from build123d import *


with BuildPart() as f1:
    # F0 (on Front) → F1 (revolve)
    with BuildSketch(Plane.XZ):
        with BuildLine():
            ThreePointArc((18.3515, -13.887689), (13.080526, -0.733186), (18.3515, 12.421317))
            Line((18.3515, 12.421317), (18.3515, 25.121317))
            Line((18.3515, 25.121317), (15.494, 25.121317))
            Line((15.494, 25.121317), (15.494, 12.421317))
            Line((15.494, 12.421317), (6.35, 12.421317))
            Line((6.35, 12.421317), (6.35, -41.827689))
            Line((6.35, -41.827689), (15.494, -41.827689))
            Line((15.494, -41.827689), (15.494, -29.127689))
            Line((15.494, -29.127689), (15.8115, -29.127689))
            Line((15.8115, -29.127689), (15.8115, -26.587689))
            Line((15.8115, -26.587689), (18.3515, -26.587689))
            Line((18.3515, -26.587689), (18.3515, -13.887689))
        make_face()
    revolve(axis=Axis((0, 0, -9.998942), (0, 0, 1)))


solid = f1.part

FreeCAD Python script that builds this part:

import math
import FreeCAD as App
import Part
import Sketcher

V = App.Vector
Q = App.Units.Quantity

doc = App.newDocument("Part")
body = doc.addObject("PartDesign::Body", "Body")

# Sketch on XZ plane
sketch1 = body.newObject("Sketcher::SketchObject", "Sketch")
sketch1.AttachmentSupport = (doc.getObject("XZ_Plane"), [""])
sketch1.MapMode = "FlatFace"
sketch1.addGeometry(Part.ArcOfCircle(Part.Circle(V(32.13, -0.73, 0), V(0, 0, 1), 19.05), math.radians(136), math.radians(224)), False)
sketch1.addGeometry(Part.LineSegment(V(18.35, 12.42, 0), V(18.35, 25.12, 0)), False)
sketch1.addGeometry(Part.LineSegment(V(18.35, 25.12, 0), V(15.49, 25.12, 0)), False)
sketch1.addGeometry(Part.LineSegment(V(15.49, 25.12, 0), V(15.49, 12.42, 0)), False)
sketch1.addGeometry(Part.LineSegment(V(15.49, 12.42, 0), V(6.35, 12.42, 0)), False)
sketch1.addGeometry(Part.LineSegment(V(6.35, 12.42, 0), V(6.35, -41.83, 0)), False)
sketch1.addGeometry(Part.LineSegment(V(6.35, -41.83, 0), V(15.49, -41.83, 0)), False)
sketch1.addGeometry(Part.LineSegment(V(15.49, -41.83, 0), V(15.49, -29.13, 0)), False)
sketch1.addGeometry(Part.LineSegment(V(15.49, -29.13, 0), V(15.81, -29.13, 0)), False)
sketch1.addGeometry(Part.LineSegment(V(15.81, -29.13, 0), V(15.81, -26.59, 0)), False)
sketch1.addGeometry(Part.LineSegment(V(15.81, -26.59, 0), V(18.35, -26.59, 0)), False)
sketch1.addGeometry(Part.LineSegment(V(18.35, -26.59, 0), V(18.35, -13.89, 0)), False)
sketch1.addConstraint(Sketcher.Constraint("Coincident", 0, 1, 1, 1))
sketch1.addConstraint(Sketcher.Constraint("Coincident", 1, 2, 2, 1))
sketch1.addConstraint(Sketcher.Constraint("Coincident", 2, 2, 3, 1))
sketch1.addConstraint(Sketcher.Constraint("Coincident", 3, 2, 4, 1))
sketch1.addConstraint(Sketcher.Constraint("Coincident", 4, 2, 5, 1))
sketch1.addConstraint(Sketcher.Constraint("Coincident", 5, 2, 6, 1))
sketch1.addConstraint(Sketcher.Constraint("Coincident", 6, 2, 7, 1))
sketch1.addConstraint(Sketcher.Constraint("Coincident", 7, 2, 8, 1))
sketch1.addConstraint(Sketcher.Constraint("Coincident", 8, 2, 9, 1))
sketch1.addConstraint(Sketcher.Constraint("Coincident", 9, 2, 10, 1))
sketch1.addConstraint(Sketcher.Constraint("Coincident", 10, 2, 11, 1))
sketch1.addConstraint(Sketcher.Constraint("Coincident", 11, 2, 0, 2))
sketch1.addConstraint(Sketcher.Constraint("Vertical", 1))
sketch1.addConstraint(Sketcher.Constraint("Horizontal", 2))
sketch1.addConstraint(Sketcher.Constraint("Vertical", 3))
sketch1.addConstraint(Sketcher.Constraint("Horizontal", 4))
sketch1.addConstraint(Sketcher.Constraint("Vertical", 5))
sketch1.addConstraint(Sketcher.Constraint("Horizontal", 6))
sketch1.addConstraint(Sketcher.Constraint("Vertical", 7))
sketch1.addConstraint(Sketcher.Constraint("Horizontal", 8))
sketch1.addConstraint(Sketcher.Constraint("Vertical", 9))
sketch1.addConstraint(Sketcher.Constraint("Horizontal", 10))
sketch1.addConstraint(Sketcher.Constraint("Vertical", 11))
sketch1.addConstraint(Sketcher.Constraint("Horizontal", 0, 1, 3, 2))
sketch1.addConstraint(Sketcher.Constraint("Vertical", 3, 2, 6, 2))
sketch1.addConstraint(Sketcher.Constraint("Vertical", 1, 2, 10, 2))
sketch1.addConstraint(Sketcher.Constraint("Equal", 3, 7))
sketch1.addConstraint(Sketcher.Constraint("Equal", 10, 9))
sketch1.addConstraint(Sketcher.Constraint("Equal", 7, 11))
sketch1.addConstraint(Sketcher.Constraint("Radius", 0, Q("0.75 in")))
sketch1.addConstraint(Sketcher.Constraint("DistanceX", 10, 1, 10, 2, Q("0.1 in")))
sketch1.addConstraint(Sketcher.Constraint("DistanceY", 1, 1, 1, 2, Q("0.5 in")))
sketch1.addConstraint(Sketcher.Constraint("DistanceX", 4, 2, 4, 1, Q("0.36 in")))
sketch1.addConstraint(Sketcher.Constraint("DistanceX", -1, 1, 2, 2, Q("0.61 in")))
sketch1.addConstraint(Sketcher.Constraint("DistanceX", 2, 2, 2, 1, Q("0.1125 in")))
sketch1.addConstraint(Sketcher.Constraint("DistanceY", 5, 2, 5, 1, 54.249006))
sketch1.addConstraint(Sketcher.Constraint("DistanceY", 5, 2, -1, 1, 41.827689))
revolution = body.newObject("PartDesign::Revolution", "Revolution")
revolution.Profile = sketch1
revolution.ReferenceAxis = (sketch1, ["V_Axis"])
revolution.Angle = 360

doc.recompute()
